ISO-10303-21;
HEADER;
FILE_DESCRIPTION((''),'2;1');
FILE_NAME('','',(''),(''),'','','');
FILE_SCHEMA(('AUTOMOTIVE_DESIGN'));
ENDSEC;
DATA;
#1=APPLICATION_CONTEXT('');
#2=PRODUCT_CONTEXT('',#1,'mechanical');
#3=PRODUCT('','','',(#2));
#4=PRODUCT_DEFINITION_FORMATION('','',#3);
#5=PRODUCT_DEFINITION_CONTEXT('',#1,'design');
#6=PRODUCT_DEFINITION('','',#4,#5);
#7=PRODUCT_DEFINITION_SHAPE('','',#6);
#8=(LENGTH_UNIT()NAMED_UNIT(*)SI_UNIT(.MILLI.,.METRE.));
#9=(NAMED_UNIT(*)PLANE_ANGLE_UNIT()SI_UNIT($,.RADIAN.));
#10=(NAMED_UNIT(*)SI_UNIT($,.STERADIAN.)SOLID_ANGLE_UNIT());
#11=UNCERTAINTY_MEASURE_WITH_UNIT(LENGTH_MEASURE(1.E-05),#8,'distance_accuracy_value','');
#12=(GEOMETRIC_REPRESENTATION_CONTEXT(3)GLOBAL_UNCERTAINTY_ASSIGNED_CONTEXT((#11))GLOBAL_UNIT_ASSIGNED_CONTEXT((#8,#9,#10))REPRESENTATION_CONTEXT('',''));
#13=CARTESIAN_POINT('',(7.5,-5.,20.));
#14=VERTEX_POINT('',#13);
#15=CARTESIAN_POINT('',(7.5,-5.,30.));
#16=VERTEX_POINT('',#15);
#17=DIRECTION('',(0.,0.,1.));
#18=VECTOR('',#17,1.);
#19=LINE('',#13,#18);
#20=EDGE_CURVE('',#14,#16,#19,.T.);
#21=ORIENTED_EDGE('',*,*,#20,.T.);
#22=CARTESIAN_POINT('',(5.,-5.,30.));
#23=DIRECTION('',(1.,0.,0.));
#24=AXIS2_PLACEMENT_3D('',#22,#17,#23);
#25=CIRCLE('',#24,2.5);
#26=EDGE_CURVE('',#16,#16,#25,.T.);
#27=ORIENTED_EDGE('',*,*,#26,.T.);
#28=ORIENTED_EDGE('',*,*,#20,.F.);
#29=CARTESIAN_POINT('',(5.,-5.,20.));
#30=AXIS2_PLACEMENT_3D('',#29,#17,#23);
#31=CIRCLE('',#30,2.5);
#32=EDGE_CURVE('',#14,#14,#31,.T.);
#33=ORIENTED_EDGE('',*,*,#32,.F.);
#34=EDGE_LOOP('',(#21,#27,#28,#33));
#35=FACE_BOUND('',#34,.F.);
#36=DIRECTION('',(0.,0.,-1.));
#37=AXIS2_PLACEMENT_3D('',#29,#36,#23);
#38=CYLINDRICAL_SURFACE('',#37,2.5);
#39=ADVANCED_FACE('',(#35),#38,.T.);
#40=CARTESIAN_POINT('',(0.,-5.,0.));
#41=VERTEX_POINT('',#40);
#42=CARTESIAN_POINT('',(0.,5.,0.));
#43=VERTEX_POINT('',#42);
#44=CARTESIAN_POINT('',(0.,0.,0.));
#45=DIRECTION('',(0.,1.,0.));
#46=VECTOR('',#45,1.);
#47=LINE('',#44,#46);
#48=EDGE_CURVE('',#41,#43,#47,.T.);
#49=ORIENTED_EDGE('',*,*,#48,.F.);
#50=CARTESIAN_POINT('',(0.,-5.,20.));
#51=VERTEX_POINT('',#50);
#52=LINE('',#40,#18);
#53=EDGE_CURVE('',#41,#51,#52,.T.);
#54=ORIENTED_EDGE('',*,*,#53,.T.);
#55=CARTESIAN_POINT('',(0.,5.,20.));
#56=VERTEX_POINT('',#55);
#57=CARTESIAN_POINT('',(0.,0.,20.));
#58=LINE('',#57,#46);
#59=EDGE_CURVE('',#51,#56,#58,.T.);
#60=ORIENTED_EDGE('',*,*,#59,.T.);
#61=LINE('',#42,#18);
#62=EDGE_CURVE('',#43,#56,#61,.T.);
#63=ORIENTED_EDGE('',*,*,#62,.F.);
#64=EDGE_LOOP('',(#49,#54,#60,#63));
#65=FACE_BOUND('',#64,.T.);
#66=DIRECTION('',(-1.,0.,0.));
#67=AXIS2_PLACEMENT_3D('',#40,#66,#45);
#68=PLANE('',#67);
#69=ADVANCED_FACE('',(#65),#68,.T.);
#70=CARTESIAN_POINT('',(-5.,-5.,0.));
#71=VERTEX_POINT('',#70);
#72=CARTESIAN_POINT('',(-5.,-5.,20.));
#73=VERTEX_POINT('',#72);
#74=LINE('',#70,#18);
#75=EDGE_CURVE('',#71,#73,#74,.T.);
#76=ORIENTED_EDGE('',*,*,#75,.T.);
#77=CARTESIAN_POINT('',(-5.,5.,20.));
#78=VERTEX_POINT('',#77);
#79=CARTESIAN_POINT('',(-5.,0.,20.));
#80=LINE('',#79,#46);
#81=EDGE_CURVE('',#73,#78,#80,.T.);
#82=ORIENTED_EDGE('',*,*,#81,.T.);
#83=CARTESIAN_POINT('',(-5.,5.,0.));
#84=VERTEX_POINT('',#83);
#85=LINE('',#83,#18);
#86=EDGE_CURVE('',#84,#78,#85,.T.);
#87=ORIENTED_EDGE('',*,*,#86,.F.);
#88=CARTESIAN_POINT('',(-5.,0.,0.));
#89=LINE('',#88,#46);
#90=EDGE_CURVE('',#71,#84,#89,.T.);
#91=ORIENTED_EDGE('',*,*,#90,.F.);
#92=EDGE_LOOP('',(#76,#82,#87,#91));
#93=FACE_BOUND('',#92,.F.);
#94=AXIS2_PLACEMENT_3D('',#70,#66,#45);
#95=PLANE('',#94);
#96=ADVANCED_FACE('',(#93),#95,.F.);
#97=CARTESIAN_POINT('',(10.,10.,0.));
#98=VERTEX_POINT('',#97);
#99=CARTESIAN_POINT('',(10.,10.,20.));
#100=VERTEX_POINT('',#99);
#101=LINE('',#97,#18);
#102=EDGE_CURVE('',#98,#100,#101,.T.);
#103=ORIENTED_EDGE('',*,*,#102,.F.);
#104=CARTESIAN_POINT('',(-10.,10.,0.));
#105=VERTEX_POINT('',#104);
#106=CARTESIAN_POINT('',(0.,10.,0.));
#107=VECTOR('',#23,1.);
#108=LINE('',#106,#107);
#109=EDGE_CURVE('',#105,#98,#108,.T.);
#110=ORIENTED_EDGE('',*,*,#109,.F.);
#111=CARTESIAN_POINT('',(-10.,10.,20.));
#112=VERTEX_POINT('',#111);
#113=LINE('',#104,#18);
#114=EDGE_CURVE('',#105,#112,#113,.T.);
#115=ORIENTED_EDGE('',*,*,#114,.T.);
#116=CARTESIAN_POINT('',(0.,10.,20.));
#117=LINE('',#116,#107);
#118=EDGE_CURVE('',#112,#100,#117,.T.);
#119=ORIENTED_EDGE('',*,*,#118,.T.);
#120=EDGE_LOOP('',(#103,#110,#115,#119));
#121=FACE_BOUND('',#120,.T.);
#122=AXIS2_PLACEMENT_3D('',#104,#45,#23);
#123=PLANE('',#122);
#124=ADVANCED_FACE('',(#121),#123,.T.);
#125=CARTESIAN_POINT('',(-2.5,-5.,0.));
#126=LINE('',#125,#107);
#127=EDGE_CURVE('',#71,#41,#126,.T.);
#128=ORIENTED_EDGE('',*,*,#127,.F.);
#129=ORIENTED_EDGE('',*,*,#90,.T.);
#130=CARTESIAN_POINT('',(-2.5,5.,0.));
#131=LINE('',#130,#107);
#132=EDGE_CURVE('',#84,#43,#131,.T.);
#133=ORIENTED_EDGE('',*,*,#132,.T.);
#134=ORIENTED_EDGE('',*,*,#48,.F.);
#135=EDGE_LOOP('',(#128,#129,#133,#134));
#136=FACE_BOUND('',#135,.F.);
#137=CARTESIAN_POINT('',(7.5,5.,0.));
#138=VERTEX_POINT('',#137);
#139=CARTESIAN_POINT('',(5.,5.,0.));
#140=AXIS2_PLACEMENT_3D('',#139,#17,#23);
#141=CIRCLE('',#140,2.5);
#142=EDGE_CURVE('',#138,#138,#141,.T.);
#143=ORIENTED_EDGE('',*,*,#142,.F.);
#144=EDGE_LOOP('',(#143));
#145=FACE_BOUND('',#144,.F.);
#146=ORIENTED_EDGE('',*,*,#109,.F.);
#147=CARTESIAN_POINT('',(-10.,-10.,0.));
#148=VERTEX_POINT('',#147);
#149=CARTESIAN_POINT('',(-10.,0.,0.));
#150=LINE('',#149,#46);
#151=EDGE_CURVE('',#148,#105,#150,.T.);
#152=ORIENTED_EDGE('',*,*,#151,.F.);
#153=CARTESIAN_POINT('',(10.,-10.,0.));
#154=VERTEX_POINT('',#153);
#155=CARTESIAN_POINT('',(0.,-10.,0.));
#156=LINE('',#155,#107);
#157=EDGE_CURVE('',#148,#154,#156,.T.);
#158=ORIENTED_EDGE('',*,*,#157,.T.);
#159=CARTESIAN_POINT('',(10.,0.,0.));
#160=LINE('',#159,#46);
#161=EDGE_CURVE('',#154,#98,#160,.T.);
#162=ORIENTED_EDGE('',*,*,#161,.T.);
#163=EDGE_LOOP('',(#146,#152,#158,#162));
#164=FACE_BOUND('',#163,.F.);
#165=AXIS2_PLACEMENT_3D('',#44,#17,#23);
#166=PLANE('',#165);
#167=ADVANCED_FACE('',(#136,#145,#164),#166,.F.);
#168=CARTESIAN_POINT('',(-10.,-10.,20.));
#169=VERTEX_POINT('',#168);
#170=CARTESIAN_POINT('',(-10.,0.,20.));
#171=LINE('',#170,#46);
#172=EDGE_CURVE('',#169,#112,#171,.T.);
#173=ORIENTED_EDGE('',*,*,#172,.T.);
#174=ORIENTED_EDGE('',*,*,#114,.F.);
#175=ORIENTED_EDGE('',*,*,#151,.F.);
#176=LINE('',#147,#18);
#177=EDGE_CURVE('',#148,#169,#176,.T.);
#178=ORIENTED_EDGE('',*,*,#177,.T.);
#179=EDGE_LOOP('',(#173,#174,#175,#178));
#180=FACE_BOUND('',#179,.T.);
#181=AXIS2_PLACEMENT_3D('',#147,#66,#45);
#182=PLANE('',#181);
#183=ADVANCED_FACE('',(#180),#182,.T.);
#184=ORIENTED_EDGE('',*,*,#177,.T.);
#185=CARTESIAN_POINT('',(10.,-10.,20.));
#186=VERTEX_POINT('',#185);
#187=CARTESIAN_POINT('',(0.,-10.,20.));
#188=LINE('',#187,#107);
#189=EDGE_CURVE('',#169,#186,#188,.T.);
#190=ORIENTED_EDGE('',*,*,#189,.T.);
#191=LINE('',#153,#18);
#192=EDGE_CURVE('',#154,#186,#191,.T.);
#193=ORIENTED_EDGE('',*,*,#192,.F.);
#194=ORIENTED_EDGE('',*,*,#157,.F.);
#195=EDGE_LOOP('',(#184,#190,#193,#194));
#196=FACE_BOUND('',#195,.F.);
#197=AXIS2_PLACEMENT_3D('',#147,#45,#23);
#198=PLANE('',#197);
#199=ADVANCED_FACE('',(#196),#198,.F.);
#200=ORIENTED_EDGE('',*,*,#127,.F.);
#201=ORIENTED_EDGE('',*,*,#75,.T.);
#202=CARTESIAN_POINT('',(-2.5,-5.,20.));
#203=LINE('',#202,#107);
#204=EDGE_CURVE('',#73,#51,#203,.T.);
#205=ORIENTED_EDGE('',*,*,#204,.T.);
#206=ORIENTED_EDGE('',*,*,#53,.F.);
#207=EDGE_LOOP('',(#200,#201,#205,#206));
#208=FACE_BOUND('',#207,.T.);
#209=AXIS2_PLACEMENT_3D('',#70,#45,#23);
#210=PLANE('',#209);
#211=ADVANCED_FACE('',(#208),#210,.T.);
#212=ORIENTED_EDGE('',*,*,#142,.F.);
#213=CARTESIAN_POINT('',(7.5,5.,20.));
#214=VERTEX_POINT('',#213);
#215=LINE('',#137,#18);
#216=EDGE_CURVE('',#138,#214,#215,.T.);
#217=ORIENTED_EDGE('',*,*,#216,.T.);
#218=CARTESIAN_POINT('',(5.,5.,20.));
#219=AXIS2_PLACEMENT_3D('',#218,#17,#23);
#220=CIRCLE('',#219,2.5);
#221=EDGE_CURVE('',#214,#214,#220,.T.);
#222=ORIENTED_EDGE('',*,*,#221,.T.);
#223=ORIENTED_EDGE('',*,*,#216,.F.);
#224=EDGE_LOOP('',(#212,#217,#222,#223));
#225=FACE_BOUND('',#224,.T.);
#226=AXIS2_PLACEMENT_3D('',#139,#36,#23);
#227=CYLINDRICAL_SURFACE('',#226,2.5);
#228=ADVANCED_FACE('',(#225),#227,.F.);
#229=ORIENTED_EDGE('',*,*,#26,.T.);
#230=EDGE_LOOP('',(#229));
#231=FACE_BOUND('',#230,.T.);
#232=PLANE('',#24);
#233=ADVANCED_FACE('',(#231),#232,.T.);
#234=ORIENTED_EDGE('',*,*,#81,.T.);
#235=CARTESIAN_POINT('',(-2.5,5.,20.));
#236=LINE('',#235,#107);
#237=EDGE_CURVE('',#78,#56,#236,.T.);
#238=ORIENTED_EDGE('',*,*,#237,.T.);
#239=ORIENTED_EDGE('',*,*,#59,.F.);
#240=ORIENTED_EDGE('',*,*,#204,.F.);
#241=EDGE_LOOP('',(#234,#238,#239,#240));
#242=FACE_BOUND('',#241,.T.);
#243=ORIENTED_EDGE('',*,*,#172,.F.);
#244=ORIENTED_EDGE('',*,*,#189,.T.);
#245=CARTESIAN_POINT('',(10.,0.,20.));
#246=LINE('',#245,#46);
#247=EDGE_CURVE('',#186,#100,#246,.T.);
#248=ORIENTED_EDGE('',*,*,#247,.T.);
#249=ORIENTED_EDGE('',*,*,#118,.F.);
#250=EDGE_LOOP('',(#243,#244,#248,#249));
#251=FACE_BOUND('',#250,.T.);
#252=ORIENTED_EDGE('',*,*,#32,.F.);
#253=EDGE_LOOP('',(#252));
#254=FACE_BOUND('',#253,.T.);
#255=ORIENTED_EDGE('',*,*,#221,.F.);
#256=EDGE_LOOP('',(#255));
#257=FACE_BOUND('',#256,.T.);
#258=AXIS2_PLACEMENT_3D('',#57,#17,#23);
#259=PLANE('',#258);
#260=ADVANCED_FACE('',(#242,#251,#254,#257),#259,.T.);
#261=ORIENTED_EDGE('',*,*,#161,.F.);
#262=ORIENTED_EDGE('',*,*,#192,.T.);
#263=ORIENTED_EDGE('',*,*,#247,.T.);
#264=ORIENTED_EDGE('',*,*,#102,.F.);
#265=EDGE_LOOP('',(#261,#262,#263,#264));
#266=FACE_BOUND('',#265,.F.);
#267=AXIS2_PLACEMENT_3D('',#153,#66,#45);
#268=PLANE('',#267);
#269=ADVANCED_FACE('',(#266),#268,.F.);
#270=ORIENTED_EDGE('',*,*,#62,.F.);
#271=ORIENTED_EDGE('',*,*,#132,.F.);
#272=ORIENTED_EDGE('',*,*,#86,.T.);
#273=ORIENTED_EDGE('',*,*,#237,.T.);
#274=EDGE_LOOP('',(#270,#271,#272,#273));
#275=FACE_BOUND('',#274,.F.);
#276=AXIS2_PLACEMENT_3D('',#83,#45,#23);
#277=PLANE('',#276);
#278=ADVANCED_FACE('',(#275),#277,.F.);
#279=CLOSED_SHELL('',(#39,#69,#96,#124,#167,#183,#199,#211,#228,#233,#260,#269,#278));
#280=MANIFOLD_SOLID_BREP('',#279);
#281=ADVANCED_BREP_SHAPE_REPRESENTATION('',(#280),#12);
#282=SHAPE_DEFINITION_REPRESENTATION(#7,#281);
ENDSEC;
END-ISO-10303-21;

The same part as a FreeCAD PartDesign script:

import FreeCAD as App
import Part
import Sketcher

V = App.Vector


def add_polygon(sketch, points):
    """Adds a closed chain of lines whose ends are joined by coincident constraints."""
    first, n = sketch.GeometryCount, len(points)
    for a, b in zip(points, points[1:] + points[:1]):
        sketch.addGeometry(Part.LineSegment(App.Vector(*a, 0), App.Vector(*b, 0)), False)
    for i in range(n):
        sketch.addConstraint(Sketcher.Constraint("Coincident", first + i, 2, first + (i + 1) % n, 1))

doc = App.newDocument("Part")
body = doc.addObject("PartDesign::Body", "Body")

# Sketch on XY plane
sketch1 = body.newObject("Sketcher::SketchObject", "Sketch")
sketch1.AttachmentSupport = (doc.getObject("XY_Plane"), [""])
sketch1.MapMode = "FlatFace"
add_polygon(sketch1, [(-10, 10), (-10, -10), (10, -10), (10, 10)])  # lines 0-3
add_polygon(sketch1, [(0, -5), (-5, -5), (-5, 5), (0, 5)])  # lines 4-7
sketch1.addGeometry(Part.Circle(V(5, 5, 0), V(0, 0, 1), 2.5), False)  # 8
sketch1.addConstraint(Sketcher.Constraint("Vertical", 0))
sketch1.addConstraint(Sketcher.Constraint("Horizontal", 1))
sketch1.addConstraint(Sketcher.Constraint("Vertical", 2))
sketch1.addConstraint(Sketcher.Constraint("Horizontal", 3))
sketch1.addConstraint(Sketcher.Constraint("Horizontal", 4))
sketch1.addConstraint(Sketcher.Constraint("Vertical", 5))
sketch1.addConstraint(Sketcher.Constraint("Horizontal", 6))
sketch1.addConstraint(Sketcher.Constraint("Vertical", 7))
sketch1.addConstraint(Sketcher.Constraint("Symmetric", 0, 2, 2, 2, -1, 1))
sketch1.addConstraint(Sketcher.Constraint("Symmetric", 6, 2, 7, 2, -1, 1))
sketch1.addConstraint(Sketcher.Constraint("Horizontal", 8, 3, 5, 2))
sketch1.addConstraint(Sketcher.Constraint("Equal", 3, 0))
sketch1.addConstraint(Sketcher.Constraint("Diameter", 8, 5.0))
sketch1.addConstraint(Sketcher.Constraint("DistanceX", 1, 1, 1, 2, 20.0))
sketch1.addConstraint(Sketcher.Constraint("DistanceX", 4, 2, 4, 1, 5.0))
sketch1.addConstraint(Sketcher.Constraint("DistanceY", 5, 1, 5, 2, 10.0))
sketch1.addConstraint(Sketcher.Constraint("DistanceX", -1, 1, 8, 3, 5.0))
pad1 = body.newObject("PartDesign::Pad", "Pad")
pad1.Profile = sketch1
pad1.Length = 20

# Sketch on XY plane
sketch2 = body.newObject("Sketcher::SketchObject", "Sketch001")
sketch2.AttachmentSupport = (doc.getObject("XY_Plane"), [""])
sketch2.MapMode = "FlatFace"
sketch2.AttachmentOffset = App.Placement(V(0, 0, 20), App.Rotation())
sketch2.addGeometry(Part.Circle(V(5, -5, 0), V(0, 0, 1), 2.5), False)
sketch2.addConstraint(Sketcher.Constraint("Diameter", 0, 5.0))
sketch2.addConstraint(Sketcher.Constraint("DistanceX", -1, 1, 0, 3, 5.0))
sketch2.addConstraint(Sketcher.Constraint("DistanceY", 0, 3, -1, 1, 5.0))
pad2 = body.newObject("PartDesign::Pad", "Pad001")
pad2.Profile = sketch2
pad2.Length = 10

doc.recompute()
